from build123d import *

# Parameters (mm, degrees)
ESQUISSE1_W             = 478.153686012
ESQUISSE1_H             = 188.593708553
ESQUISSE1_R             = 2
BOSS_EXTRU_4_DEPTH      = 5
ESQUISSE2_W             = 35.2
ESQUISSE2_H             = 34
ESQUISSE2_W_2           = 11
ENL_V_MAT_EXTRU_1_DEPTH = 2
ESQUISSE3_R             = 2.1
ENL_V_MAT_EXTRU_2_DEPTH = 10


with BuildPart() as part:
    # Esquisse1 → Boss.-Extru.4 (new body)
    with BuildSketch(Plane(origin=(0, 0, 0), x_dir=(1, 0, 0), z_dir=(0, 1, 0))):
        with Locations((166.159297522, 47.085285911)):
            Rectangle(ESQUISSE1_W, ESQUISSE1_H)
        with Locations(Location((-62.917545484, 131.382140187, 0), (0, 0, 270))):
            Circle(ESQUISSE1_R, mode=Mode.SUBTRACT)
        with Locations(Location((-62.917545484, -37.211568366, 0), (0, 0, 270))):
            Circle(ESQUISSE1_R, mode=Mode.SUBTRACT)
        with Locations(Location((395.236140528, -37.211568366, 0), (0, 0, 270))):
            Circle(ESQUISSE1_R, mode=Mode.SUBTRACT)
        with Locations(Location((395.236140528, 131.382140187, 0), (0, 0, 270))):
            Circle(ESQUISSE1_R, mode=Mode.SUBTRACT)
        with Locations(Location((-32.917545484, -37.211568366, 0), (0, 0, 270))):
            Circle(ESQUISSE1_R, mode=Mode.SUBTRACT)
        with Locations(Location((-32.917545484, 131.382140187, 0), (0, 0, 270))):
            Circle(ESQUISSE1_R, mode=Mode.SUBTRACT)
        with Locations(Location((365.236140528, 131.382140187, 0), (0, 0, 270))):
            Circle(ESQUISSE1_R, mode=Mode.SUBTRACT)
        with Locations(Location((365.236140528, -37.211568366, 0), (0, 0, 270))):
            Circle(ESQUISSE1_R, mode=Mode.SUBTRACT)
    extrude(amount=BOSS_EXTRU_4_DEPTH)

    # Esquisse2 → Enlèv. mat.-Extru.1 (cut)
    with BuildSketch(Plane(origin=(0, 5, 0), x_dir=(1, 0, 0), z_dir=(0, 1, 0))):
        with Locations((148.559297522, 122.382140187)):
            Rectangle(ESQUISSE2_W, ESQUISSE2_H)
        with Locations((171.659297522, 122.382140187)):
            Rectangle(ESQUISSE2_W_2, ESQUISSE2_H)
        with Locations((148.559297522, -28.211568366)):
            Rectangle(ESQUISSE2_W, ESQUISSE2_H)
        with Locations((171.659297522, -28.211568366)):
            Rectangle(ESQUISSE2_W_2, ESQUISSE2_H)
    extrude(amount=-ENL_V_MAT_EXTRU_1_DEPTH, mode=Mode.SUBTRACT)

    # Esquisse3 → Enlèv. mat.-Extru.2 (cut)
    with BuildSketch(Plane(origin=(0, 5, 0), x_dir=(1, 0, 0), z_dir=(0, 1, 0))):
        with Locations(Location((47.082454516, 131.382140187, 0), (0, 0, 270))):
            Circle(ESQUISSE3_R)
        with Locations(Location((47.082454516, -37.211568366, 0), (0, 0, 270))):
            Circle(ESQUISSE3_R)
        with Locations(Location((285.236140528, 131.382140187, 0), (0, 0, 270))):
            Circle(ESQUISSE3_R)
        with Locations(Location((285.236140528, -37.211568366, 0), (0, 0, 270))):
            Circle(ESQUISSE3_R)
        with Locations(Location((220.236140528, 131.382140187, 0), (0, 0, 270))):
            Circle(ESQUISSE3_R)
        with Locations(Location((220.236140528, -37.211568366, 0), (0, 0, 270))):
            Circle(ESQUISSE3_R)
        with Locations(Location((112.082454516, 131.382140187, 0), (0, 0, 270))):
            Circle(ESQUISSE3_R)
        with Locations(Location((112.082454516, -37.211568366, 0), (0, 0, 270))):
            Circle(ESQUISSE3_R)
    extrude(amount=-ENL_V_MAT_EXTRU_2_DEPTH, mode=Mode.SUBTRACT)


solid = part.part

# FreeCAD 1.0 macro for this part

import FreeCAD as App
import Part
import Sketcher
from FreeCAD import Vector


def add_polygon(sketch, points):
    """Adds a closed chain of lines whose ends are joined by coincident constraints."""
    first, n = sketch.GeometryCount, len(points)
    for a, b in zip(points, points[1:] + points[:1]):
        sketch.addGeometry(Part.LineSegment(App.Vector(*a, 0), App.Vector(*b, 0)), False)
    for i in range(n):
        sketch.addConstraint(Sketcher.Constraint("Coincident", first + i, 2, first + (i + 1) % n, 1))

doc = App.newDocument("Part")
body = doc.addObject("PartDesign::Body", "Body")

sketch1 = body.newObject("Sketcher::SketchObject", "Sketch")
sketch1.AttachmentSupport = (doc.getObject("XZ_Plane"), [""])
sketch1.MapMode = "FlatFace"
add_polygon(sketch1, [(-72.9, -141.4), (-72.9, 47.2), (405.2, 47.2), (405.2, -141.4)])
sketch1.addGeometry(Part.Circle(Vector(-62.9, 37.2, 0), Vector(0, 0, 1), 2), False)
sketch1.addGeometry(Part.Circle(Vector(-32.9, 37.2, 0), Vector(0, 0, 1), 2), False)
sketch1.addGeometry(Part.Circle(Vector(365.2, 37.2, 0), Vector(0, 0, 1), 2), False)
sketch1.addGeometry(Part.Circle(Vector(395.2, 37.2, 0), Vector(0, 0, 1), 2), False)
sketch1.addGeometry(Part.Circle(Vector(-62.9, -131.4, 0), Vector(0, 0, 1), 2), False)
sketch1.addGeometry(Part.Circle(Vector(-32.9, -131.4, 0), Vector(0, 0, 1), 2), False)
sketch1.addGeometry(Part.Circle(Vector(365.2, -131.4, 0), Vector(0, 0, 1), 2), False)
sketch1.addGeometry(Part.Circle(Vector(395.2, -131.4, 0), Vector(0, 0, 1), 2), False)
sketch1.addConstraint(Sketcher.Constraint("Vertical", 0))
sketch1.addConstraint(Sketcher.Constraint("Horizontal", 1))
sketch1.addConstraint(Sketcher.Constraint("Vertical", 2))
sketch1.addConstraint(Sketcher.Constraint("Horizontal", 3))
sketch1.addConstraint(Sketcher.Constraint("Equal", 4, 5))
sketch1.addConstraint(Sketcher.Constraint("Equal", 5, 6))
sketch1.addConstraint(Sketcher.Constraint("Equal", 6, 7))
sketch1.addConstraint(Sketcher.Constraint("Equal", 7, 8))
sketch1.addConstraint(Sketcher.Constraint("Equal", 8, 9))
sketch1.addConstraint(Sketcher.Constraint("Equal", 9, 10))
sketch1.addConstraint(Sketcher.Constraint("Equal", 10, 11))
sketch1.addConstraint(Sketcher.Constraint("Horizontal", 4, 3, 5, 3))
sketch1.addConstraint(Sketcher.Constraint("Horizontal", 5, 3, 6, 3))
sketch1.addConstraint(Sketcher.Constraint("Horizontal", 6, 3, 7, 3))
sketch1.addConstraint(Sketcher.Constraint("Horizontal", 8, 3, 9, 3))
sketch1.addConstraint(Sketcher.Constraint("Horizontal", 9, 3, 10, 3))
sketch1.addConstraint(Sketcher.Constraint("Horizontal", 10, 3, 11, 3))
sketch1.addConstraint(Sketcher.Constraint("Vertical", 4, 3, 8, 3))
sketch1.addConstraint(Sketcher.Constraint("Vertical", 5, 3, 9, 3))
sketch1.addConstraint(Sketcher.Constraint("Vertical", 6, 3, 10, 3))
sketch1.addConstraint(Sketcher.Constraint("Vertical", 7, 3, 11, 3))
sketch1.addConstraint(Sketcher.Constraint("Diameter", 4, 4.0))
sketch1.addConstraint(Sketcher.Constraint("DistanceX", 4, 3, 5, 3, 30.0))
sketch1.addConstraint(Sketcher.Constraint("DistanceX", 6, 3, 7, 3, 30.0))
sketch1.addConstraint(Sketcher.Constraint("DistanceX", 0, 2, 4, 3, 10.0))
sketch1.addConstraint(Sketcher.Constraint("DistanceY", 4, 3, 0, 2, 10.0))
sketch1.addConstraint(Sketcher.Constraint("DistanceX", 7, 3, 1, 2, 10.0))
sketch1.addConstraint(Sketcher.Constraint("DistanceY", 2, 2, 11, 3, 10.0))
sketch1.addConstraint(Sketcher.Constraint("DistanceY", 0, 1, 0, 2, 188.593709))
sketch1.addConstraint(Sketcher.Constraint("DistanceX", 1, 1, 1, 2, 478.153686))
sketch1.addConstraint(Sketcher.Constraint("DistanceY", -1, 1, 4, 3, 37.211568))
sketch1.addConstraint(Sketcher.Constraint("DistanceX", -1, 1, 6, 3, 365.236141))
pad1 = body.newObject("PartDesign::Pad", "Pad")
pad1.Profile = sketch1
pad1.Length = 5
pad1.Reversed = True

sketch2 = body.newObject("Sketcher::SketchObject", "Sketch001")
sketch2.AttachmentSupport = (doc.getObject("XZ_Plane"), [""])
sketch2.MapMode = "FlatFace"
sketch2.AttachmentOffset = App.Placement(Vector(0, 0, -5), App.Rotation())
add_polygon(sketch2, [(131, -139), (131, -105), (177, -105), (177, -139)])
add_polygon(sketch2, [(131, 11), (131, 45), (177, 45), (177, 11)])
sketch2.addConstraint(Sketcher.Constraint("Vertical", 0))
sketch2.addConstraint(Sketcher.Constraint("Horizontal", 1))
sketch2.addConstraint(Sketcher.Constraint("Vertical", 2))
sketch2.addConstraint(Sketcher.Constraint("Horizontal", 3))
sketch2.addConstraint(Sketcher.Constraint("Vertical", 4))
sketch2.addConstraint(Sketcher.Constraint("Horizontal", 5))
sketch2.addConstraint(Sketcher.Constraint("Vertical", 6))
sketch2.addConstraint(Sketcher.Constraint("Horizontal", 7))
sketch2.addConstraint(Sketcher.Constraint("Vertical", 3, 2, 4, 2))
sketch2.addConstraint(Sketcher.Constraint("Vertical", 2, 2, 5, 2))
sketch2.addConstraint(Sketcher.Constraint("Equal", 2, 4))
sketch2.addConstraint(Sketcher.Constraint("DistanceY", 0, 1, 0, 2, 34.0))
sketch2.addConstraint(Sketcher.Constraint("DistanceX", 1, 1, 1, 2, 46.2))
sketch2.addConstraint(Sketcher.Constraint("DistanceY", 0, 2, -1, 1, 105.38214))
sketch2.addConstraint(Sketcher.Constraint("DistanceY", -1, 1, 4, 2, 45.211568))
sketch2.addConstraint(Sketcher.Constraint("DistanceX", -1, 1, 0, 2, 130.959298))
pocket1 = body.newObject("PartDesign::Pocket", "Pocket")
pocket1.Profile = sketch2
pocket1.Length = 2
pocket1.Reversed = True

sketch3 = body.newObject("Sketcher::SketchObject", "Sketch002")
sketch3.AttachmentSupport = (doc.getObject("XZ_Plane"), [""])
sketch3.MapMode = "FlatFace"
sketch3.AttachmentOffset = App.Placement(Vector(0, 0, -5), App.Rotation())
sketch3.addGeometry(Part.Circle(Vector(47.1, -131.4, 0), Vector(0, 0, 1), 2.1), False)
sketch3.addGeometry(Part.Circle(Vector(47.1, 37.2, 0), Vector(0, 0, 1), 2.1), False)
sketch3.addGeometry(Part.Circle(Vector(285.2, -131.4, 0), Vector(0, 0, 1), 2.1), False)
sketch3.addGeometry(Part.Circle(Vector(285.2, 37.2, 0), Vector(0, 0, 1), 2.1), False)
sketch3.addGeometry(Part.Circle(Vector(220.2, -131.4, 0), Vector(0, 0, 1), 2.1), False)
sketch3.addGeometry(Part.Circle(Vector(220.2, 37.2, 0), Vector(0, 0, 1), 2.1), False)
sketch3.addGeometry(Part.Circle(Vector(112.1, -131.4, 0), Vector(0, 0, 1), 2.1), False)
sketch3.addGeometry(Part.Circle(Vector(112.1, 37.2, 0), Vector(0, 0, 1), 2.1), False)
sketch3.addConstraint(Sketcher.Constraint("Equal", 0, 1))
sketch3.addConstraint(Sketcher.Constraint("Equal", 1, 2))
sketch3.addConstraint(Sketcher.Constraint("Equal", 2, 3))
sketch3.addConstraint(Sketcher.Constraint("Equal", 3, 4))
sketch3.addConstraint(Sketcher.Constraint("Equal", 4, 5))
sketch3.addConstraint(Sketcher.Constraint("Equal", 5, 6))
sketch3.addConstraint(Sketcher.Constraint("Equal", 6, 7))
sketch3.addConstraint(Sketcher.Constraint("Horizontal", 0, 3, 2, 3))
sketch3.addConstraint(Sketcher.Constraint("Horizontal", 1, 3, 3, 3))
sketch3.addConstraint(Sketcher.Constraint("Horizontal", 2, 3, 4, 3))
sketch3.addConstraint(Sketcher.Constraint("Horizontal", 3, 3, 5, 3))
sketch3.addConstraint(Sketcher.Constraint("Horizontal", 4, 3, 6, 3))
sketch3.addConstraint(Sketcher.Constraint("Horizontal", 5, 3, 7, 3))
sketch3.addConstraint(Sketcher.Constraint("Vertical", 0, 3, 1, 3))
sketch3.addConstraint(Sketcher.Constraint("Vertical", 2, 3, 3, 3))
sketch3.addConstraint(Sketcher.Constraint("Vertical", 4, 3, 5, 3))
sketch3.addConstraint(Sketcher.Constraint("Vertical", 6, 3, 7, 3))
sketch3.addConstraint(Sketcher.Constraint("Diameter", 0, 4.2))
sketch3.addConstraint(Sketcher.Constraint("DistanceX", 4, 3, 2, 3, 65.0))
sketch3.addConstraint(Sketcher.Constraint("DistanceX", 0, 3, 6, 3, 65.0))
sketch3.addConstraint(Sketcher.Constraint("DistanceY", 0, 3, -1, 1, 131.38214))
sketch3.addConstraint(Sketcher.Constraint("DistanceY", -1, 1, 1, 3, 37.211568))
sketch3.addConstraint(Sketcher.Constraint("DistanceX", -1, 1, 2, 3, 285.236141))
sketch3.addConstraint(Sketcher.Constraint("DistanceX", -1, 1, 0, 3, 47.082455))
pocket2 = body.newObject("PartDesign::Pocket", "Pocket001")
pocket2.Profile = sketch3
pocket2.Length = 10
pocket2.Reversed = True

doc.recompute()
